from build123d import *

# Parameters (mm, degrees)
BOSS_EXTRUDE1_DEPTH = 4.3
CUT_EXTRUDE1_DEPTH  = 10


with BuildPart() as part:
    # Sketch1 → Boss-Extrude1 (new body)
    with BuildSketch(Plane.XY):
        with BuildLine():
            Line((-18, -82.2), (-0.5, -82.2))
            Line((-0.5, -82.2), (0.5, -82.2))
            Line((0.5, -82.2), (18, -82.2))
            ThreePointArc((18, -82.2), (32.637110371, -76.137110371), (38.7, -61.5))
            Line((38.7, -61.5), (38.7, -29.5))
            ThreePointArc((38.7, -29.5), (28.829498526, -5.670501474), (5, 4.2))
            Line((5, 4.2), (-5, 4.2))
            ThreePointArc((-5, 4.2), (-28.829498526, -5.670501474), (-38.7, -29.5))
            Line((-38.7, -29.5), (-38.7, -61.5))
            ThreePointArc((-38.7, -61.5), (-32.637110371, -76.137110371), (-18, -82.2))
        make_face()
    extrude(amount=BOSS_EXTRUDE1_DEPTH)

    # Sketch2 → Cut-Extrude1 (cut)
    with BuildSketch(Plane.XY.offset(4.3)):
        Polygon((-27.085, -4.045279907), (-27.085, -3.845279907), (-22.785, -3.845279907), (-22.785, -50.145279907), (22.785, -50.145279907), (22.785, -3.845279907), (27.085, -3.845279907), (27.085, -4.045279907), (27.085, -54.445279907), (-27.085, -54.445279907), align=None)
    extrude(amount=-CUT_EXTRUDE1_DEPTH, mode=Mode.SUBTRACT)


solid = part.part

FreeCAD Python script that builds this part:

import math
import FreeCAD as App
import Part
import Sketcher

doc = App.newDocument("Part")
body = doc.addObject("PartDesign::Body", "Body")
body.AllowCompound = True

# Sketch on XY plane
sketch1 = doc.addObject("Sketcher::SketchObject", "Sketch")
body.addObject(sketch1)
sketch1.AttachmentSupport = (doc.XY_Plane, [""])
sketch1.MapMode = "FlatFace"
sketch1.addGeometry([
    Part.LineSegment(App.Vector(-18, -82.2, 0), App.Vector(18, -82.2, 0)),  # 0
    Part.ArcOfCircle(Part.Circle(App.Vector(18, -61.5, 0), App.Vector(0, 0, 1), 20.7), math.radians(-90), math.radians(0)),  # 1
    Part.LineSegment(App.Vector(38.7, -61.5, 0), App.Vector(38.7, -29.5, 0)),  # 2
    Part.ArcOfCircle(Part.Circle(App.Vector(5, -29.5, 0), App.Vector(0, 0, 1), 33.7), math.radians(0), math.radians(90)),  # 3
    Part.LineSegment(App.Vector(5, 4.2, 0), App.Vector(-5, 4.2, 0)),  # 4
    Part.ArcOfCircle(Part.Circle(App.Vector(-5, -29.5, 0), App.Vector(0, 0, 1), 33.7), math.radians(90), math.radians(180)),  # 5
    Part.LineSegment(App.Vector(-38.7, -29.5, 0), App.Vector(-38.7, -61.5, 0)),  # 6
    Part.ArcOfCircle(Part.Circle(App.Vector(-18, -61.5, 0), App.Vector(0, 0, 1), 20.7), math.radians(180), math.radians(270)),  # 7
], False)
sketch1.addConstraint([
    Sketcher.Constraint("Tangent", 0, 2, 1, 1),
    Sketcher.Constraint("Tangent", 1, 2, 2, 1),
    Sketcher.Constraint("Tangent", 2, 2, 3, 1),
    Sketcher.Constraint("Tangent", 3, 2, 4, 1),
    Sketcher.Constraint("Tangent", 4, 2, 5, 1),
    Sketcher.Constraint("Tangent", 5, 2, 6, 1),
    Sketcher.Constraint("Tangent", 6, 2, 7, 1),
    Sketcher.Constraint("Tangent", 7, 2, 0, 1),
    Sketcher.Constraint("Horizontal", 0),
    Sketcher.Constraint("Vertical", 2),
    Sketcher.Constraint("Horizontal", 4),
    Sketcher.Constraint("Vertical", 6),
    Sketcher.Constraint("Equal", 3, 5),
    Sketcher.Constraint("Equal", 1, 7),
    Sketcher.Constraint("Radius", 1, 20.7),
    Sketcher.Constraint("Radius", 3, 33.7),
    Sketcher.Constraint("DistanceX", 0, 1, 0, 2, 36.0),
    Sketcher.Constraint("DistanceY", 2, 1, 2, 2, 32.0),
    Sketcher.Constraint("DistanceX", -1, 1, 1, 3, 18.0),
    Sketcher.Constraint("DistanceY", 1, 3, -1, 1, 61.5),
])
pad1 = doc.addObject("PartDesign::Pad", "Pad")
body.addObject(pad1)
pad1.Profile = sketch1
pad1.Length = 4.3

# Sketch on XY plane
sketch2 = doc.addObject("Sketcher::SketchObject", "Sketch001")
body.addObject(sketch2)
sketch2.AttachmentSupport = (doc.XY_Plane, [""])
sketch2.MapMode = "FlatFace"
sketch2.AttachmentOffset = App.Placement(App.Vector(0, 0, 4.3), App.Rotation())
sketch2.addGeometry([
    Part.LineSegment(App.Vector(-27.085, -3.84528, 0), App.Vector(-27.085, -54.44528, 0)),  # 0
    Part.LineSegment(App.Vector(-27.085, -54.44528, 0), App.Vector(27.085, -54.44528, 0)),  # 1
    Part.LineSegment(App.Vector(27.085, -54.44528, 0), App.Vector(27.085, -3.84528, 0)),  # 2
    Part.LineSegment(App.Vector(27.085, -3.84528, 0), App.Vector(22.785, -3.84528, 0)),  # 3
    Part.LineSegment(App.Vector(22.785, -3.84528, 0), App.Vector(22.785, -50.14528, 0)),  # 4
    Part.LineSegment(App.Vector(22.785, -50.14528, 0), App.Vector(-22.785, -50.14528, 0)),  # 5
    Part.LineSegment(App.Vector(-22.785, -50.14528, 0), App.Vector(-22.785, -3.84528, 0)),  # 6
    Part.LineSegment(App.Vector(-22.785, -3.84528, 0), App.Vector(-27.085, -3.84528, 0)),  # 7
], False)
sketch2.addConstraint([
    Sketcher.Constraint("Coincident", 0, 2, 1, 1),
    Sketcher.Constraint("Coincident", 1, 2, 2, 1),
    Sketcher.Constraint("Coincident", 2, 2, 3, 1),
    Sketcher.Constraint("Coincident", 3, 2, 4, 1),
    Sketcher.Constraint("Coincident", 4, 2, 5, 1),
    Sketcher.Constraint("Coincident", 5, 2, 6, 1),
    Sketcher.Constraint("Coincident", 6, 2, 7, 1),
    Sketcher.Constraint("Coincident", 7, 2, 0, 1),
    Sketcher.Constraint("Vertical", 0),
    Sketcher.Constraint("Horizontal", 1),
    Sketcher.Constraint("Vertical", 2),
    Sketcher.Constraint("Horizontal", 3),
    Sketcher.Constraint("Vertical", 4),
    Sketcher.Constraint("Horizontal", 5),
    Sketcher.Constraint("Vertical", 6),
    Sketcher.Constraint("Horizontal", 7),
    Sketcher.Constraint("Symmetric", 3, 2, 6, 2, -2),
    Sketcher.Constraint("Equal", 3, 7),
    Sketcher.Constraint("DistanceX", 3, 2, 3, 1, 4.3),
    Sketcher.Constraint("DistanceY", 0, 2, 0, 1, 50.6),
    Sketcher.Constraint("DistanceY", 4, 2, 4, 1, 46.3),
    Sketcher.Constraint("DistanceX", 1, 1, 1, 2, 54.17),
    Sketcher.Constraint("DistanceY", 0, 2, -1, 1, 54.44528),
])
pocket1 = doc.addObject("PartDesign::Pocket", "Pocket")
body.addObject(pocket1)
pocket1.Profile = sketch2
pocket1.Length = 10

doc.recompute()
